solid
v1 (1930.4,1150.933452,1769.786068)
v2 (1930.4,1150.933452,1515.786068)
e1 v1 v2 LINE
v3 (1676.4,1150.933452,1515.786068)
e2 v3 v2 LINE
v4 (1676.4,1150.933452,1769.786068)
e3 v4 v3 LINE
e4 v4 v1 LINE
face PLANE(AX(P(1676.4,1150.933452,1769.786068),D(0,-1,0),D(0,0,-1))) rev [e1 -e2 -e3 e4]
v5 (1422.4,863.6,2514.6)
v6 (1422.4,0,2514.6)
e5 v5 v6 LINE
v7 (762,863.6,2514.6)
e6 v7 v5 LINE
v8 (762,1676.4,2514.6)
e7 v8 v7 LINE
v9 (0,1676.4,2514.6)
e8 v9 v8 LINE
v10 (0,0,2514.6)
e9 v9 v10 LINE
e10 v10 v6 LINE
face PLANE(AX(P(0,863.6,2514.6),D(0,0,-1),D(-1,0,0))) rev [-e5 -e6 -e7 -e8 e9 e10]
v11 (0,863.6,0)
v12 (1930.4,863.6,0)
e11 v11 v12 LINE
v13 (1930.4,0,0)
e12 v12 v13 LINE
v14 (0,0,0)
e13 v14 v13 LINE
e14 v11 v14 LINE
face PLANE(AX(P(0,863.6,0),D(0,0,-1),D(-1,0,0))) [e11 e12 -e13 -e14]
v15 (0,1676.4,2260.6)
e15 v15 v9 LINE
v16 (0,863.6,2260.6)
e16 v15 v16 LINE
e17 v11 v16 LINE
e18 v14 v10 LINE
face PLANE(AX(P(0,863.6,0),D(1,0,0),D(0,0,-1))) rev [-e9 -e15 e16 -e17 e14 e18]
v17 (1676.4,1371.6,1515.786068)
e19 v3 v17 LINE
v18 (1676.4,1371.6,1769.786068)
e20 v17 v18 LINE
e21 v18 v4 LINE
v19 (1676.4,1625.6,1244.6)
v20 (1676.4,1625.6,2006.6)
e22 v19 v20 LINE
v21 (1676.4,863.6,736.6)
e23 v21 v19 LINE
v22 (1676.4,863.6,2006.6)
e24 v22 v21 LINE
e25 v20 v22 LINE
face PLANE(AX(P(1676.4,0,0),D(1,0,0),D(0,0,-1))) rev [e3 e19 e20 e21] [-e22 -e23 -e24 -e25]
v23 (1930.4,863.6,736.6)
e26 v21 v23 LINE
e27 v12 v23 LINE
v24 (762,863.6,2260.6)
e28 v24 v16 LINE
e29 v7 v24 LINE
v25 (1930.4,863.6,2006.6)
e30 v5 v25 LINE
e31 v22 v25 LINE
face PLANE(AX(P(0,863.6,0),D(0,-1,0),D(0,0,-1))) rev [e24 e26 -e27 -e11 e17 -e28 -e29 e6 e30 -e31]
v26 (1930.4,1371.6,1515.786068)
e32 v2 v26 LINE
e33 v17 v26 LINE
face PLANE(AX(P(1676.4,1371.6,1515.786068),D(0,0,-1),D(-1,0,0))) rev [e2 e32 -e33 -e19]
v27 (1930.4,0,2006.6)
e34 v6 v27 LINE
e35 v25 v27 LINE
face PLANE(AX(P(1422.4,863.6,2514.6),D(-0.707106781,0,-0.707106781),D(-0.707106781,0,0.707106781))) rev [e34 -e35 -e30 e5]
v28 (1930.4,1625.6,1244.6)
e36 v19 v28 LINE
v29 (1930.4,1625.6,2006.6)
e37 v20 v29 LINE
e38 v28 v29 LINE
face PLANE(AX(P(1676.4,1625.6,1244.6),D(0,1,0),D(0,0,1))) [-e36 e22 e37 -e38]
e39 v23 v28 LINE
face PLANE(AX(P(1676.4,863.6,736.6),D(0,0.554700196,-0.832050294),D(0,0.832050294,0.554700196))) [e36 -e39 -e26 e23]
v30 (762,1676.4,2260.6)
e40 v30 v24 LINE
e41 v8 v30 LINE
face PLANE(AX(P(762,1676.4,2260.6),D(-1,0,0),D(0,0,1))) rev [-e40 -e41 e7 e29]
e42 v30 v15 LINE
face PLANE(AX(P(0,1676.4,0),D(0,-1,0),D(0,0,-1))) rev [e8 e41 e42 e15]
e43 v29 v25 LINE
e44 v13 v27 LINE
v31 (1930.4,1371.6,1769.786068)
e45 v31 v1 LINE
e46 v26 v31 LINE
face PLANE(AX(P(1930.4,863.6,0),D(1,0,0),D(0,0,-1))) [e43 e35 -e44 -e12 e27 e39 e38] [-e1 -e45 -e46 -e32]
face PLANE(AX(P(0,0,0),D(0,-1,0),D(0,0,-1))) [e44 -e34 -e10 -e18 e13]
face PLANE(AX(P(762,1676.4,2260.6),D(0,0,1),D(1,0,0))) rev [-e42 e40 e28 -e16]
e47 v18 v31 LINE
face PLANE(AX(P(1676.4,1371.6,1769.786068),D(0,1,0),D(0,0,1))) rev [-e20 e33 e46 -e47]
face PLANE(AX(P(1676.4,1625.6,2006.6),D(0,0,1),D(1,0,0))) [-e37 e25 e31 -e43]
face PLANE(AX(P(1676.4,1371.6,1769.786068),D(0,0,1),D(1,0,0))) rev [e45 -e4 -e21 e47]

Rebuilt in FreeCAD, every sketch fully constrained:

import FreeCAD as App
import Part
import Sketcher
from FreeCAD import Vector
Q = App.Units.Quantity


def add_polygon(sketch, points):
    """Adds a closed chain of lines whose ends are joined by coincident constraints."""
    first, n = sketch.GeometryCount, len(points)
    for a, b in zip(points, points[1:] + points[:1]):
        sketch.addGeometry(Part.LineSegment(App.Vector(*a, 0), App.Vector(*b, 0)), False)
    for i in range(n):
        sketch.addConstraint(Sketcher.Constraint("Coincident", first + i, 2, first + (i + 1) % n, 1))

doc = App.newDocument("Part")
body = doc.addObject("PartDesign::Body", "Body")

# Sketch on XZ plane
sketch1 = body.newObject("Sketcher::SketchObject", "Sketch")
sketch1.AttachmentSupport = (doc.getObject("XZ_Plane"), [""])
sketch1.MapMode = "FlatFace"
add_polygon(sketch1, [(0, 0), (0, 2515), (1422, 2515), (1930, 2007), (1930, 0)])  # lines 0-4
sketch1.addConstraint([
    Sketcher.Constraint("Vertical", 0),
    Sketcher.Constraint("Horizontal", 1),
    Sketcher.Constraint("Vertical", 3),
    Sketcher.Constraint("Horizontal", 4),
    Sketcher.Constraint("Coincident", 4, 2, -1, 1),
    Sketcher.Constraint("DistanceX", 1, 1, 1, 2, Q("56 in")),
    Sketcher.Constraint("DistanceX", 4, 2, 4, 1, Q("76 in")),
    Sketcher.Constraint("DistanceY", 0, 1, 0, 2, Q("99 in")),
    Sketcher.Constraint("DistanceY", 3, 2, 3, 1, Q("79 in")),
])
pad1 = body.newObject("PartDesign::Pad", "Pad")
pad1.Profile = sketch1
pad1.Length = Q("34 in")
pad1.Reversed = True

# Sketch on XZ plane
sketch2 = body.newObject("Sketcher::SketchObject", "Sketch001")
sketch2.AttachmentSupport = (doc.getObject("XZ_Plane"), [""])
sketch2.MapMode = "FlatFace"
sketch2.AttachmentOffset = App.Placement(Vector(0, 0, -34 * 25.4), App.Rotation())
add_polygon(sketch2, [(0, 2261), (0, 2515), (762, 2515), (762, 2261)])  # lines 0-3
sketch2.addConstraint([
    Sketcher.Constraint("Vertical", 0),
    Sketcher.Constraint("Horizontal", 1),
    Sketcher.Constraint("Vertical", 2),
    Sketcher.Constraint("Horizontal", 3),
    Sketcher.Constraint("PointOnObject", 0, 2, -2),
    Sketcher.Constraint("DistanceX", 1, 1, 1, 2, Q("30 in")),
    Sketcher.Constraint("DistanceY", 0, 1, 0, 2, Q("10 in")),
    Sketcher.Constraint("DistanceY", -1, 1, 0, 2, Q("99 in")),
])
pad2 = body.newObject("PartDesign::Pad", "Pad001")
pad2.Profile = sketch2
pad2.Length = Q("32 in")
pad2.Reversed = True

# Sketch on YZ plane
sketch3 = body.newObject("Sketcher::SketchObject", "Sketch002")
sketch3.AttachmentSupport = (doc.getObject("YZ_Plane"), [""])
sketch3.MapMode = "FlatFace"
sketch3.AttachmentOffset = App.Placement(Vector(0, 0, 76 * 25.4), App.Rotation())
add_polygon(sketch3, [(864, 2007), (864, 737), (1626, 1245), (1626, 2007)])  # lines 0-3
add_polygon(sketch3, [(1151, 1516), (1151, 1770), (1372, 1770), (1372, 1516)])  # lines 4-7
sketch3.addConstraint([
    Sketcher.Constraint("Vertical", 0),
    Sketcher.Constraint("Vertical", 2),
    Sketcher.Constraint("Horizontal", 3),
    Sketcher.Constraint("Vertical", 4),
    Sketcher.Constraint("Horizontal", 5),
    Sketcher.Constraint("Vertical", 6),
    Sketcher.Constraint("Horizontal", 7),
    Sketcher.Constraint("Equal", 3, 2),
    Sketcher.Constraint("DistanceX", 3, 2, 3, 1, Q("30 in")),
    Sketcher.Constraint("DistanceY", 0, 2, 0, 1, Q("50 in")),
    Sketcher.Constraint("DistanceY", 4, 1, 4, 2, Q("10 in")),
    Sketcher.Constraint("DistanceX", -1, 1, 0, 2, Q("34 in")),
    Sketcher.Constraint("DistanceY", -1, 1, 0, 2, Q("29 in")),
    Sketcher.Constraint("DistanceX", -1, 1, 5, 2, Q("54 in")),
    Sketcher.Constraint("DistanceX", 5, 1, 5, 2, 220.666548),
    Sketcher.Constraint("DistanceY", -1, 1, 4, 2, 1769.786068),
])
pad3 = body.newObject("PartDesign::Pad", "Pad002")
pad3.Profile = sketch3
pad3.Length = Q("10 in")
pad3.Reversed = True

doc.recompute()
